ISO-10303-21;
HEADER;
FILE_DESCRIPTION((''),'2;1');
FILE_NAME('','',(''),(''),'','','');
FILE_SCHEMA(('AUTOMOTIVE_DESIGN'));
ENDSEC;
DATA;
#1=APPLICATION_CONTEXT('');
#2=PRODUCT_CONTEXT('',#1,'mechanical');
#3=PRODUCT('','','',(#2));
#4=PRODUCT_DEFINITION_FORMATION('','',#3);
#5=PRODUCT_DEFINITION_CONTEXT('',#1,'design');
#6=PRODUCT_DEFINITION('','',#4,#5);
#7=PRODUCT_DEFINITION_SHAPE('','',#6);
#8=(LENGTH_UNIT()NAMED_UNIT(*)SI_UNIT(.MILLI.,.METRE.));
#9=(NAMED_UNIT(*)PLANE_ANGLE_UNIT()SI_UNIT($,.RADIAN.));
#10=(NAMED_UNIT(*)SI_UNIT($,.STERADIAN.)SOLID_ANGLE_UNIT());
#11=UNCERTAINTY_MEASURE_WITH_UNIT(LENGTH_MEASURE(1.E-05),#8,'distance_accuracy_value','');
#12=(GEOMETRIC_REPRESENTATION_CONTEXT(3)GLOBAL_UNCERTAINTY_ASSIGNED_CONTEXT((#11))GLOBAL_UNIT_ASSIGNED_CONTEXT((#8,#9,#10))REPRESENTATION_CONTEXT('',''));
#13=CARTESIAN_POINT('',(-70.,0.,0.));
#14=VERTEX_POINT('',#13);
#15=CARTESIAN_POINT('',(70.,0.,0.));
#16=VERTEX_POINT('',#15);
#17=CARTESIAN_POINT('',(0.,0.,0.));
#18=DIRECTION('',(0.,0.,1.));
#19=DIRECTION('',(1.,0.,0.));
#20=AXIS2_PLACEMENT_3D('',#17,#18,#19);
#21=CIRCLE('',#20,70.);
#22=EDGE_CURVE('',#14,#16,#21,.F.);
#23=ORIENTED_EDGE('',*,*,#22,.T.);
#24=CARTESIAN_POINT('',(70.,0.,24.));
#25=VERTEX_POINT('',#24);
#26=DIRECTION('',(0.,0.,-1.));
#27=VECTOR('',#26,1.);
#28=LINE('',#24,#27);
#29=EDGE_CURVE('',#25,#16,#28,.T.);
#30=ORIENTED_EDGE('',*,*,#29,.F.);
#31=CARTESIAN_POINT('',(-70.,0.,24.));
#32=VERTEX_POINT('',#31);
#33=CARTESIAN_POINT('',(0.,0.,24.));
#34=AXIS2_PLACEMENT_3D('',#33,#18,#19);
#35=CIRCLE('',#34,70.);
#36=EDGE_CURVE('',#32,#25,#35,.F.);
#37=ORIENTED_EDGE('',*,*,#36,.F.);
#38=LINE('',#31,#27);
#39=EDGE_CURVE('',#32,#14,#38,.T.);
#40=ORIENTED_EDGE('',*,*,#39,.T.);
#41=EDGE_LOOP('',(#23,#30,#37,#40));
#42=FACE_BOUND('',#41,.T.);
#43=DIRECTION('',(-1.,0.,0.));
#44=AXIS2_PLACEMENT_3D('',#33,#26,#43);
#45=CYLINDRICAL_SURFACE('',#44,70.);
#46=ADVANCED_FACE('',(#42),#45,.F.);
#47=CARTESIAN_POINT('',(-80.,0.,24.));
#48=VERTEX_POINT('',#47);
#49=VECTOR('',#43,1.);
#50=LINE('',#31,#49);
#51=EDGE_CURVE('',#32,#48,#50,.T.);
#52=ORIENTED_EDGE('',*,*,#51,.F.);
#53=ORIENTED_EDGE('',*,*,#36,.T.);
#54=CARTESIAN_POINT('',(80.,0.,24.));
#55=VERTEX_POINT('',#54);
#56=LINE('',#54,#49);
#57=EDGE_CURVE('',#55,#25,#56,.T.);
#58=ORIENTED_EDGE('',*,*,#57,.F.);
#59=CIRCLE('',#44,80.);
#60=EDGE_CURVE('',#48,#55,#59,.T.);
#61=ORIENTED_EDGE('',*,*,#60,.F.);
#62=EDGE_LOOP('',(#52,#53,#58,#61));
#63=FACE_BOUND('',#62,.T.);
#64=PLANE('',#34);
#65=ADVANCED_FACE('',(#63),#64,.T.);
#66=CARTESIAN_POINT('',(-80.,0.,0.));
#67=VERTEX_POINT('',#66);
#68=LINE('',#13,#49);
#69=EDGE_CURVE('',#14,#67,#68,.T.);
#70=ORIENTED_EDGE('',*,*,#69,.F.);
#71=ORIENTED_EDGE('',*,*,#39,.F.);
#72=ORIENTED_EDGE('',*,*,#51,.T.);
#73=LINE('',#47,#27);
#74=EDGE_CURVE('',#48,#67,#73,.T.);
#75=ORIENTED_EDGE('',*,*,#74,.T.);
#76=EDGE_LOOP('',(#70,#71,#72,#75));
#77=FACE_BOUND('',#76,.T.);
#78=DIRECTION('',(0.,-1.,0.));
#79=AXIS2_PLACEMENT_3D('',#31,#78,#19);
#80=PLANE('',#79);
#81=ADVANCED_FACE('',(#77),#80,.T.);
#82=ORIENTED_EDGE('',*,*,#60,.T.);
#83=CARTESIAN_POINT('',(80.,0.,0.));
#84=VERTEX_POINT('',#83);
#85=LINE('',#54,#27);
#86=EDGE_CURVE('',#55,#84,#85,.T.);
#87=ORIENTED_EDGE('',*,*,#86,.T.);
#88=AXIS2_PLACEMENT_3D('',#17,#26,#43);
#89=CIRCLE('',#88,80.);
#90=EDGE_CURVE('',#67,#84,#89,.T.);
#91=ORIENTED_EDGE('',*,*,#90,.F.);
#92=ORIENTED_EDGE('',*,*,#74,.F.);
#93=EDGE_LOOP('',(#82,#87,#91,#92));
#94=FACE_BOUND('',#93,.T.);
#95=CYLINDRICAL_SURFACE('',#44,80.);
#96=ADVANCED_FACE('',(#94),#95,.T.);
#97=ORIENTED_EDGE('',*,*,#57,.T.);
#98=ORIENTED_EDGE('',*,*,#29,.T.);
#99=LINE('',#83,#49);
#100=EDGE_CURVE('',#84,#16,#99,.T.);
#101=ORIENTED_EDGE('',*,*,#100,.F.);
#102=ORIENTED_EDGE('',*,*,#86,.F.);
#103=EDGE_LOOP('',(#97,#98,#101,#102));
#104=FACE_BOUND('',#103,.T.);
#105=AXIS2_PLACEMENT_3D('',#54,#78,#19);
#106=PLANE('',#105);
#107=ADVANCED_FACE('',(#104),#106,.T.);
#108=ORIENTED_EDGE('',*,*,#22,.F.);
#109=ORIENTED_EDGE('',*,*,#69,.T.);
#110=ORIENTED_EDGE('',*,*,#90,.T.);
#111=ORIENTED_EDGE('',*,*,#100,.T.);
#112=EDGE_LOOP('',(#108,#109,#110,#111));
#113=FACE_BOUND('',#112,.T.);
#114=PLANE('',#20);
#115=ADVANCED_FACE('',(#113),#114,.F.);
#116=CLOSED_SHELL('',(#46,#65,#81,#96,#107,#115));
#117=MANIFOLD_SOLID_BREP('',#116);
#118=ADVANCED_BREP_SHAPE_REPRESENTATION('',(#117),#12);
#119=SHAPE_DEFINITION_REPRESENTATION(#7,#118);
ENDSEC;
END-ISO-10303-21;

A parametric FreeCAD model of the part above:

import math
import FreeCAD as App
import Part
import Sketcher

V = App.Vector

doc = App.newDocument("Part")
params = doc.addObject("Spreadsheet::Sheet", "Params")
for row, (alias, value) in enumerate([
    ("sketch1_radius", "80 mm"),
    ("sketch1_radius2", "70 mm"),
    ("pad1_length", "24 mm"),
], start=1):
    params.set(f"A{row}", alias)
    params.set(f"B{row}", "=" + value)
    params.setAlias(f"B{row}", alias)

body = doc.addObject("PartDesign::Body", "Body")

# Sketch on XY plane
sketch1 = doc.addObject("Sketcher::SketchObject", "Sketch")
body.addObject(sketch1)
sketch1.AttachmentSupport = (doc.XY_Plane, [""])
sketch1.MapMode = "FlatFace"
sketch1.addGeometry(Part.ArcOfCircle(Part.Circle(V(0, 0, 0), V(0, 0, 1), 80), math.radians(0), math.radians(180)), False)
sketch1.addGeometry(Part.LineSegment(V(-80, 0, 0), V(-70, 0, 0)), False)
sketch1.addGeometry(Part.ArcOfCircle(Part.Circle(V(0, 0, 0), V(0, 0, 1), 70), math.radians(0), math.radians(180)), False)
sketch1.addGeometry(Part.LineSegment(V(70, 0, 0), V(80, 0, 0)), False)
sketch1.addConstraint(Sketcher.Constraint("Coincident", 0, 2, 1, 1))
sketch1.addConstraint(Sketcher.Constraint("Coincident", 1, 2, 2, 2))
sketch1.addConstraint(Sketcher.Constraint("Coincident", 2, 1, 3, 1))
sketch1.addConstraint(Sketcher.Constraint("Coincident", 3, 2, 0, 1))
sketch1.addConstraint(Sketcher.Constraint("Horizontal", 1))
sketch1.addConstraint(Sketcher.Constraint("Horizontal", 3))
sketch1.addConstraint(Sketcher.Constraint("Coincident", 0, 3, -1, 1))
sketch1.addConstraint(Sketcher.Constraint("Coincident", 2, 3, -1, 1))
sketch1.addConstraint(Sketcher.Constraint("PointOnObject", 0, 2, -1))
sketch1.addConstraint(Sketcher.Constraint("PointOnObject", 2, 1, -1))
sketch1.addConstraint(Sketcher.Constraint("Radius", 0, 80.0))
sketch1.addConstraint(Sketcher.Constraint("Radius", 2, 70.0))
sketch1.setExpression("Constraints[10]", "Params.sketch1_radius")
sketch1.setExpression("Constraints[11]", "Params.sketch1_radius2")
pad1 = doc.addObject("PartDesign::Pad", "Pad")
body.addObject(pad1)
pad1.Profile = sketch1
pad1.setExpression("Length", "Params.pad1_length")

doc.recompute()
